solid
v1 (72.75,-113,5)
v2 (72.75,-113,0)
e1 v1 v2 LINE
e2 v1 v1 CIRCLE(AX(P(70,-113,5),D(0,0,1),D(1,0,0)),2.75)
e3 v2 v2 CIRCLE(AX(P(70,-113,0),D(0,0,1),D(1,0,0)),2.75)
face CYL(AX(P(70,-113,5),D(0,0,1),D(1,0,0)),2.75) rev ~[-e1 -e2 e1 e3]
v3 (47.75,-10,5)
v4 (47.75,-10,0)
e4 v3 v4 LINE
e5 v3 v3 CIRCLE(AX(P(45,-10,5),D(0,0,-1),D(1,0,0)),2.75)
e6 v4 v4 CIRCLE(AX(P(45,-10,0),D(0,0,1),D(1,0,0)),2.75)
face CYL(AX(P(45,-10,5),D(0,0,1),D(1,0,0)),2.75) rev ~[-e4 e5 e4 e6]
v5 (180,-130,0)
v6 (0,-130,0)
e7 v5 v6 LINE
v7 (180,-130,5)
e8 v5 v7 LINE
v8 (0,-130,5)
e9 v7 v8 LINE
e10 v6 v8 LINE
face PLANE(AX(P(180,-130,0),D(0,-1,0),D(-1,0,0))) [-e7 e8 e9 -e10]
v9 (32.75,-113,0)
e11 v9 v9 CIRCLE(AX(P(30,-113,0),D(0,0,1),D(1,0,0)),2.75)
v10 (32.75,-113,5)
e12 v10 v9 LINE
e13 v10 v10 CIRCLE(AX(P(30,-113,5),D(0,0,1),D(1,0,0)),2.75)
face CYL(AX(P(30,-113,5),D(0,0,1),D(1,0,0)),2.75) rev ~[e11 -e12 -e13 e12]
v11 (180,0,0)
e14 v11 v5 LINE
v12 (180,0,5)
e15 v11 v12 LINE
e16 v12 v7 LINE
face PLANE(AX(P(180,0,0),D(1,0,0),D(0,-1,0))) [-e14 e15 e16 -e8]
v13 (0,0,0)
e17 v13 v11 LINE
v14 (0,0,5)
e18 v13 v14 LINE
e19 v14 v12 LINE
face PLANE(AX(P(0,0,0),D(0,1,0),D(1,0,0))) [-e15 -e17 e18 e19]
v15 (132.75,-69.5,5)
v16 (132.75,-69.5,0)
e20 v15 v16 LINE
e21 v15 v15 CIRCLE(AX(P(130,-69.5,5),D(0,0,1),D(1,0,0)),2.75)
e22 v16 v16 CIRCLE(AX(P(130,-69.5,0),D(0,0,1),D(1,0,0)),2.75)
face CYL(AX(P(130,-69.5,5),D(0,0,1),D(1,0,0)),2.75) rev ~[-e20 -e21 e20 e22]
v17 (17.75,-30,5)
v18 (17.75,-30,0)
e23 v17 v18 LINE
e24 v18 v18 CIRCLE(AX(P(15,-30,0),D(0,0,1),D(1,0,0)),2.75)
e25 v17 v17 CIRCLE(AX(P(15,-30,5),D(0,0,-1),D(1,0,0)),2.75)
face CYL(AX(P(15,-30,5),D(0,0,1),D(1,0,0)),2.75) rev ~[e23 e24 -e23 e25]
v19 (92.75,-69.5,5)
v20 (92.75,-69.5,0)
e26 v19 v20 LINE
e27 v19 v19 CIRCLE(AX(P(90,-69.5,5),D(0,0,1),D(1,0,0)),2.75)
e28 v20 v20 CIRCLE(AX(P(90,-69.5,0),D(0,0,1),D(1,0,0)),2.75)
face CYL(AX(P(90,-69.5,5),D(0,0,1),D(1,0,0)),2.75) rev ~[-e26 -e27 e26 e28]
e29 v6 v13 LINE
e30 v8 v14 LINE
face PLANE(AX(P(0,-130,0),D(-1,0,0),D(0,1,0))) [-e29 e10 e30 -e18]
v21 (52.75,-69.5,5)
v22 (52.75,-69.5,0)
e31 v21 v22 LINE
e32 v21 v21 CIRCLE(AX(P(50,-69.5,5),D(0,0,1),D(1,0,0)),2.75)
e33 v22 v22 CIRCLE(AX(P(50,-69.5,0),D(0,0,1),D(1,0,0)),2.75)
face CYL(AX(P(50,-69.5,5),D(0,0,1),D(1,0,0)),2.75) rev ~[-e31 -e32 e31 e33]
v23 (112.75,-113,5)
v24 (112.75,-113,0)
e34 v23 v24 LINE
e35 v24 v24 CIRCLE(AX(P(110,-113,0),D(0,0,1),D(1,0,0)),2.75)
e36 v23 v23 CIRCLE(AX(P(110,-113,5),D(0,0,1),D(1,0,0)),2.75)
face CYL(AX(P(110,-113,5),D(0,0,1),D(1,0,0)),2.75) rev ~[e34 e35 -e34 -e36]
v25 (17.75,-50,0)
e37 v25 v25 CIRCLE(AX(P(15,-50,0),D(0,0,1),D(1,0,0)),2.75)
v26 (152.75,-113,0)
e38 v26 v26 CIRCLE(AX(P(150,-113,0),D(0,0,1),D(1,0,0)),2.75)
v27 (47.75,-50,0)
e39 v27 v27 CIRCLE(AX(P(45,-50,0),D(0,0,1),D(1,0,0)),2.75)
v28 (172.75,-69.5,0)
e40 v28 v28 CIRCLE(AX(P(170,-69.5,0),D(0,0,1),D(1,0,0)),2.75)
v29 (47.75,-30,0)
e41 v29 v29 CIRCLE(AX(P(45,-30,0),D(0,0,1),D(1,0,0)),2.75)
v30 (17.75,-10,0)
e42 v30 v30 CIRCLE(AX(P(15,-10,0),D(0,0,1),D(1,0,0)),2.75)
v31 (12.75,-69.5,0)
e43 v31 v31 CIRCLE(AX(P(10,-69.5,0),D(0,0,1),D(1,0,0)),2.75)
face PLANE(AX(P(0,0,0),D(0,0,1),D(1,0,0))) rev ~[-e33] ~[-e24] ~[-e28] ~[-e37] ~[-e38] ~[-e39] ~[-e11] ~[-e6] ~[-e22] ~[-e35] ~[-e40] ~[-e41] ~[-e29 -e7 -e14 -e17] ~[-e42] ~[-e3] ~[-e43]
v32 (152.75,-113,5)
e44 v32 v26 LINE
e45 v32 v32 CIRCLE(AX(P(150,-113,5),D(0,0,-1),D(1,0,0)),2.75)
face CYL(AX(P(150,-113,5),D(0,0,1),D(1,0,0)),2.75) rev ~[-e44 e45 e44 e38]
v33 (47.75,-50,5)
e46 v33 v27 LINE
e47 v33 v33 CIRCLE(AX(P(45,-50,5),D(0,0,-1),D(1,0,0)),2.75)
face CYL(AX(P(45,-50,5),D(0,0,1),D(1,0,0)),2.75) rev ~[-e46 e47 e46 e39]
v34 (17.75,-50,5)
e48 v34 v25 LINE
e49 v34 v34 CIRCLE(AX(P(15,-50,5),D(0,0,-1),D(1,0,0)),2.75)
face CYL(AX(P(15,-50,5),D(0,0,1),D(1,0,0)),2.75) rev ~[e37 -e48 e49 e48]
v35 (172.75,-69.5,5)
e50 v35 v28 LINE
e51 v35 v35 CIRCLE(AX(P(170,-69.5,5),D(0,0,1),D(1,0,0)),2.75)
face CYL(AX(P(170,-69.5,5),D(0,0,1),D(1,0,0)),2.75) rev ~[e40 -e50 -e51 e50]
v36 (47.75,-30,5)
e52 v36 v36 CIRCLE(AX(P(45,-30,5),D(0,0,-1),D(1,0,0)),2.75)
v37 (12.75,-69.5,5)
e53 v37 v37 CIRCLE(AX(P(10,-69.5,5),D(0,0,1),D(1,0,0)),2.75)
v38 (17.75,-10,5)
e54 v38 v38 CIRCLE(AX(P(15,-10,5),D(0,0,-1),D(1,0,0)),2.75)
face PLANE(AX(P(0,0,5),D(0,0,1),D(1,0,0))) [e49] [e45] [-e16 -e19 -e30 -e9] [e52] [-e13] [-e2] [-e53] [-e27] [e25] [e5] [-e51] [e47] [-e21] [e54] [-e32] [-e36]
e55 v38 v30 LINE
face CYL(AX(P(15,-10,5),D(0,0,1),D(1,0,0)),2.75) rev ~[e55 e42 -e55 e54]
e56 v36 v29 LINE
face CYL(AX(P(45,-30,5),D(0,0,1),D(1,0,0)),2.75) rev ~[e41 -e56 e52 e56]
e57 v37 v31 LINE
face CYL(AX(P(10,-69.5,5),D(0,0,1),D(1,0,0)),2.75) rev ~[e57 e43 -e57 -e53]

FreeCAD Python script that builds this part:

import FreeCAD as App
import Part
import Sketcher

doc = App.newDocument("Part")
body = doc.addObject("PartDesign::Body", "Body")

# Sketch on XY plane
sketch1 = body.newObject("Sketcher::SketchObject", "Sketch")
sketch1.AttachmentSupport = (doc.getObject("XY_Plane"), [""])
sketch1.MapMode = "FlatFace"
sketch1.addGeometry([
    Part.LineSegment(App.Vector(180, 0, 0), App.Vector(0, 0, 0)),
    Part.LineSegment(App.Vector(0, 0, 0), App.Vector(0, -130, 0)),
    Part.LineSegment(App.Vector(0, -130, 0), App.Vector(180, -130, 0)),
    Part.LineSegment(App.Vector(180, -130, 0), App.Vector(180, 0, 0)),
], False)
sketch1.addConstraint([
    Sketcher.Constraint("Coincident", 0, 2, 1, 1),
    Sketcher.Constraint("Coincident", 1, 2, 2, 1),
    Sketcher.Constraint("Coincident", 2, 2, 3, 1),
    Sketcher.Constraint("Coincident", 3, 2, 0, 1),
    Sketcher.Constraint("Horizontal", 0),
    Sketcher.Constraint("Vertical", 1),
    Sketcher.Constraint("Horizontal", 2),
    Sketcher.Constraint("Vertical", 3),
    Sketcher.Constraint("Coincident", 0, 2, -1, 1),
    Sketcher.Constraint("DistanceX", 0, 2, 0, 1, 180.0),
    Sketcher.Constraint("DistanceY", 1, 2, 1, 1, 130.0),
])
pad1 = body.newObject("PartDesign::Pad", "Pad")
pad1.Profile = sketch1
pad1.Length = 5

# Sketch on XY plane
sketch2 = body.newObject("Sketcher::SketchObject", "Sketch001")
sketch2.AttachmentSupport = (doc.getObject("XY_Plane"), [""])
sketch2.MapMode = "FlatFace"
sketch2.AttachmentOffset = App.Placement(App.Vector(0, 0, 5), App.Rotation())
sketch2.addGeometry([
    Part.Circle(App.Vector(170, -69.5, 0), App.Vector(0, 0, 1), 2.75),  # 0
    Part.Circle(App.Vector(150, -113, 0), App.Vector(0, 0, 1), 2.75),  # 1
    Part.Circle(App.Vector(130, -69.5, 0), App.Vector(0, 0, 1), 2.75),  # 2
    Part.Circle(App.Vector(90, -69.5, 0), App.Vector(0, 0, 1), 2.75),  # 3
    Part.Circle(App.Vector(50, -69.5, 0), App.Vector(0, 0, 1), 2.75),  # 4
    Part.Circle(App.Vector(10, -69.5, 0), App.Vector(0, 0, 1), 2.75),  # 5
    Part.Circle(App.Vector(110, -113, 0), App.Vector(0, 0, 1), 2.75),  # 6
    Part.Circle(App.Vector(70, -113, 0), App.Vector(0, 0, 1), 2.75),  # 7
    Part.Circle(App.Vector(30, -113, 0), App.Vector(0, 0, 1), 2.75),  # 8
], False)
sketch2.addConstraint([
    Sketcher.Constraint("Equal", 0, 1),
    Sketcher.Constraint("Equal", 1, 2),
    Sketcher.Constraint("Equal", 2, 3),
    Sketcher.Constraint("Equal", 3, 4),
    Sketcher.Constraint("Equal", 4, 5),
    Sketcher.Constraint("Equal", 5, 6),
    Sketcher.Constraint("Equal", 6, 7),
    Sketcher.Constraint("Equal", 7, 8),
    Sketcher.Constraint("Horizontal", 0, 3, 2, 3),
    Sketcher.Constraint("Horizontal", 2, 3, 3, 3),
    Sketcher.Constraint("Horizontal", 3, 3, 4, 3),
    Sketcher.Constraint("Horizontal", 4, 3, 5, 3),
    Sketcher.Constraint("Horizontal", 1, 3, 6, 3),
    Sketcher.Constraint("Horizontal", 6, 3, 7, 3),
    Sketcher.Constraint("Horizontal", 7, 3, 8, 3),
    Sketcher.Constraint("Diameter", 0, 5.5),
    Sketcher.Constraint("DistanceX", -1, 1, 5, 3, 10.0),
    Sketcher.Constraint("DistanceX", -1, 1, 8, 3, 30.0),
    Sketcher.Constraint("DistanceX", 2, 3, 0, 3, 40.0),
    Sketcher.Constraint("DistanceX", 3, 3, 2, 3, 40.0),
    Sketcher.Constraint("DistanceX", 4, 3, 3, 3, 40.0),
    Sketcher.Constraint("DistanceX", 5, 3, 4, 3, 40.0),
    Sketcher.Constraint("DistanceX", 6, 3, 1, 3, 40.0),
    Sketcher.Constraint("DistanceX", 7, 3, 6, 3, 40.0),
    Sketcher.Constraint("DistanceX", 8, 3, 7, 3, 40.0),
    Sketcher.Constraint("DistanceY", 1, 3, 0, 3, 43.5),
    Sketcher.Constraint("DistanceY", 1, 3, -1, 1, 113.0),
])
pocket1 = body.newObject("PartDesign::Pocket", "Pocket")
pocket1.Profile = sketch2
pocket1.Length = 5

# Sketch on XY plane
sketch3 = body.newObject("Sketcher::SketchObject", "Sketch002")
sketch3.AttachmentSupport = (doc.getObject("XY_Plane"), [""])
sketch3.MapMode = "FlatFace"
sketch3.AttachmentOffset = App.Placement(App.Vector(0, 0, 5), App.Rotation())
sketch3.addGeometry([
    Part.Circle(App.Vector(15, -10, 0), App.Vector(0, 0, 1), 2.75),  # 0
    Part.Circle(App.Vector(45, -50, 0), App.Vector(0, 0, 1), 2.75),  # 1
    Part.Circle(App.Vector(45, -30, 0), App.Vector(0, 0, 1), 2.75),  # 2
    Part.Circle(App.Vector(45, -10, 0), App.Vector(0, 0, 1), 2.75),  # 3
    Part.Circle(App.Vector(15, -50, 0), App.Vector(0, 0, 1), 2.75),  # 4
    Part.Circle(App.Vector(15, -30, 0), App.Vector(0, 0, 1), 2.75),  # 5
], False)
sketch3.addConstraint([
    Sketcher.Constraint("Equal", 0, 1),
    Sketcher.Constraint("Equal", 1, 2),
    Sketcher.Constraint("Equal", 2, 3),
    Sketcher.Constraint("Equal", 3, 4),
    Sketcher.Constraint("Equal", 4, 5),
    Sketcher.Constraint("Horizontal", 0, 3, 3, 3),
    Sketcher.Constraint("Horizontal", 1, 3, 4, 3),
    Sketcher.Constraint("Horizontal", 2, 3, 5, 3),
    Sketcher.Constraint("Vertical", 1, 3, 2, 3),
    Sketcher.Constraint("Vertical", 2, 3, 3, 3),
    Sketcher.Constraint("Vertical", 0, 3, 4, 3),
    Sketcher.Constraint("Vertical", 4, 3, 5, 3),
    Sketcher.Constraint("Diameter", 0, 5.5),
    Sketcher.Constraint("DistanceX", -1, 1, 0, 3, 15.0),
    Sketcher.Constraint("DistanceY", 0, 3, -1, 1, 10.0),
    Sketcher.Constraint("DistanceY", 2, 3, -1, 1, 30.0),
    Sketcher.Constraint("DistanceX", 0, 3, 1, 3, 30.0),
    Sketcher.Constraint("DistanceY", 1, 3, 2, 3, 20.0),
])
pocket2 = body.newObject("PartDesign::Pocket", "Pocket001")
pocket2.Profile = sketch3
pocket2.Length = 5

doc.recompute()
